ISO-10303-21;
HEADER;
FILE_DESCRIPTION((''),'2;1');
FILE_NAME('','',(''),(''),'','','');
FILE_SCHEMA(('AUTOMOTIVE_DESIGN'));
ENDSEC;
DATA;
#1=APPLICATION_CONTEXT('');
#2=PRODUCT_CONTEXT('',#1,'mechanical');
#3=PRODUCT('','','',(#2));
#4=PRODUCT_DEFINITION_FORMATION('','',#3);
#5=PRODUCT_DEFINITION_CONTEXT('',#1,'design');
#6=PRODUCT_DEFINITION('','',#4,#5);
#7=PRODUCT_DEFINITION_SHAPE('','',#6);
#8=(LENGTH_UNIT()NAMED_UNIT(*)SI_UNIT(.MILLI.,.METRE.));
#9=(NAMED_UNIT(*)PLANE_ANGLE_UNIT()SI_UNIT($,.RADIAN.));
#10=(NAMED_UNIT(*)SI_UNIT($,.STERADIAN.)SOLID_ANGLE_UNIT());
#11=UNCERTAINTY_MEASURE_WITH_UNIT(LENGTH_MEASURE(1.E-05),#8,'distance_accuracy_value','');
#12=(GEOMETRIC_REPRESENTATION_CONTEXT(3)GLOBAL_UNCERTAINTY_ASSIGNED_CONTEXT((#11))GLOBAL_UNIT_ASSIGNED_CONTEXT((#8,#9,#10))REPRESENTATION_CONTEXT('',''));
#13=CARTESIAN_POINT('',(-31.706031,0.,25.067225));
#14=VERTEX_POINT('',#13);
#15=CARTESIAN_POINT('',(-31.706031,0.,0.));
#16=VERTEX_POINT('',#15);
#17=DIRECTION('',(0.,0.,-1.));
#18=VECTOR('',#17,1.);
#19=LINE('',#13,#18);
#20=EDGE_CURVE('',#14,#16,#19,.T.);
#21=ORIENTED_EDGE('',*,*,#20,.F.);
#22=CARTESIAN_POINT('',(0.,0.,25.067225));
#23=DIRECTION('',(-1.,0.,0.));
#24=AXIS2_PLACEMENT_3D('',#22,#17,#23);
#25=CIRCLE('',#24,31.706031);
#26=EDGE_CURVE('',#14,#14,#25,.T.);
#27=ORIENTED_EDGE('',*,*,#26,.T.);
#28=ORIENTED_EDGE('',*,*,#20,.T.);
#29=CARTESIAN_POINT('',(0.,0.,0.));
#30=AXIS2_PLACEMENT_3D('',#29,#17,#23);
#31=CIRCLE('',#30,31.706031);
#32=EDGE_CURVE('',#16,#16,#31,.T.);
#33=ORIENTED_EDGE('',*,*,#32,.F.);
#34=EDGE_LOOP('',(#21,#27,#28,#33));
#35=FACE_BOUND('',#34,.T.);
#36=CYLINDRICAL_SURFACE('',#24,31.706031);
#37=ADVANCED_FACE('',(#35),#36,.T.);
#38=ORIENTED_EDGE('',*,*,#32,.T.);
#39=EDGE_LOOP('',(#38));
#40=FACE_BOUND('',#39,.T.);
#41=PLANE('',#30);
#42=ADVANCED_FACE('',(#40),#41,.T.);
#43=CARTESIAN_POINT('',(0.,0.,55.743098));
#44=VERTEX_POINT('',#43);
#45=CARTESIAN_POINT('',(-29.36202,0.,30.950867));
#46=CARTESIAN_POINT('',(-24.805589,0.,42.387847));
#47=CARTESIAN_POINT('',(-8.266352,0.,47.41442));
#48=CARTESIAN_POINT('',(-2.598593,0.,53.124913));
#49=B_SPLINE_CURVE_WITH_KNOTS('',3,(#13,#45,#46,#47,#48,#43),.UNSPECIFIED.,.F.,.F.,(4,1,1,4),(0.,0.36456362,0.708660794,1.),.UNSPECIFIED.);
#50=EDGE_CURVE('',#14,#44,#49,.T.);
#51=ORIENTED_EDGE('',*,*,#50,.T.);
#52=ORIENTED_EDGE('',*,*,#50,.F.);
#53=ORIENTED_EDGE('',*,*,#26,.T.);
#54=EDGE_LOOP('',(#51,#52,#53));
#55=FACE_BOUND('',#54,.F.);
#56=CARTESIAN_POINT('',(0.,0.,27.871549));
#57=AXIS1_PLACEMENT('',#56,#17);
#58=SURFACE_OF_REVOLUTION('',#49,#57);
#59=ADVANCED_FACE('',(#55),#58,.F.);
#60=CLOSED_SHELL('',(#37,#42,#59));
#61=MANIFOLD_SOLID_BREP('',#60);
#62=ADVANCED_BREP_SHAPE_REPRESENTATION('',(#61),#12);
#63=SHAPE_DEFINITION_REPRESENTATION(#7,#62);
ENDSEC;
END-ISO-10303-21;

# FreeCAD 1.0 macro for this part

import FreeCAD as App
import Part
import Sketcher

V = App.Vector

doc = App.newDocument("Part")
body = doc.addObject("PartDesign::Body", "Body")

# Sketch on XZ plane
sketch1 = doc.addObject("Sketcher::SketchObject", "Sketch")
body.addObject(sketch1)
sketch1.AttachmentSupport = (doc.XZ_Plane, [""])
sketch1.MapMode = "FlatFace"
sketch1.addGeometry([
    Part.LineSegment(V(-31.706031, 0, 0), V(0, 0, 0)),
    Part.LineSegment(V(0, 0, 0), V(0, 55.743098, 0)),
    Part.BSplineCurve([V(-31.706031, 25.067225, 0), V(-29.36202, 30.950867, 0), V(-24.805589, 42.387847, 0), V(-8.266352, 47.41442, 0), V(-2.598593, 53.124913, 0), V(0, 55.743098, 0)], [4, 1, 1, 4], [0, 0.36456362, 0.708660794, 1], False, 3, [1, 1, 1, 1, 1, 1], False),
    Part.LineSegment(V(-31.706031, 25.067225, 0), V(-31.706031, 0, 0)),
], False)
sketch1.addConstraint([
    Sketcher.Constraint("Block", 2),
    Sketcher.Constraint("Coincident", 0, 2, 1, 1),
    Sketcher.Constraint("Coincident", 1, 2, 2, 2),
    Sketcher.Constraint("Coincident", 2, 1, 3, 1),
    Sketcher.Constraint("Coincident", 3, 2, 0, 1),
    Sketcher.Constraint("Horizontal", 0),
    Sketcher.Constraint("Vertical", 1),
    Sketcher.Constraint("Vertical", 3),
    Sketcher.Constraint("PointOnObject", 3, 2, -1),
])
revolution = doc.addObject("PartDesign::Revolution", "Revolution")
body.addObject(revolution)
revolution.Profile = sketch1
revolution.ReferenceAxis = (sketch1, ["V_Axis"])
revolution.Angle = 360

doc.recompute()
